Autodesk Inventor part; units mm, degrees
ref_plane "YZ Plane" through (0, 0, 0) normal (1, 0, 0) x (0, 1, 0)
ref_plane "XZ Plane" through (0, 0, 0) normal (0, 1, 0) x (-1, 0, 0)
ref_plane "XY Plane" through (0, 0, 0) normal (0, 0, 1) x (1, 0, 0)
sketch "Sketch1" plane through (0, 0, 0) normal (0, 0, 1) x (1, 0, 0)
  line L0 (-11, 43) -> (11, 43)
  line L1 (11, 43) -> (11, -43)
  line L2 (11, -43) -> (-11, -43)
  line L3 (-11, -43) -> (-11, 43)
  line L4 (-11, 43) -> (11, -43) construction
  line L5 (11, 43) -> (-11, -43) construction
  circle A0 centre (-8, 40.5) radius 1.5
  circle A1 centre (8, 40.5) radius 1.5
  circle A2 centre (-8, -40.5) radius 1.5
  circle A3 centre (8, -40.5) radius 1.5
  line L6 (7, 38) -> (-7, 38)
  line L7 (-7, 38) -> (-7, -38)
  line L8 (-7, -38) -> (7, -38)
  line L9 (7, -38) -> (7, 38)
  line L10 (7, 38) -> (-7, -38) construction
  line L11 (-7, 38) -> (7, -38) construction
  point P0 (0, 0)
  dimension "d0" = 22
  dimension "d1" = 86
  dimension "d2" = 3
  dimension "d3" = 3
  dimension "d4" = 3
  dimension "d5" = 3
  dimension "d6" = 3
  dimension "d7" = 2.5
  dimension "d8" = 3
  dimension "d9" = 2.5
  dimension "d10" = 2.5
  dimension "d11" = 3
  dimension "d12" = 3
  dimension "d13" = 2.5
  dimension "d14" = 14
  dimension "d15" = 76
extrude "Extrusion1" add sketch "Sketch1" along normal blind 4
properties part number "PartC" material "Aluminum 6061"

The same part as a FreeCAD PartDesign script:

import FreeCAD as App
import Part
import Sketcher

doc = App.newDocument("Part")
params = doc.addObject("Spreadsheet::Sheet", "Params")
for row, (alias, value) in enumerate([
    ("sketch1_diameter", "3 mm"),
    ("sketch1_width", "22 mm"),
    ("sketch1_width2", "14 mm"),
    ("sketch1_height", "86 mm"),
    ("sketch1_height2", "76 mm"),
    ("pad1_length", "4 mm"),
], start=1):
    params.set(f"A{row}", alias)
    params.set(f"B{row}", "=" + value)
    params.setAlias(f"B{row}", alias)

body = doc.addObject("PartDesign::Body", "Body")

# Sketch on XY plane
sketch1 = body.newObject("Sketcher::SketchObject", "Sketch")
sketch1.AttachmentSupport = (doc.getObject("XY_Plane"), [""])
sketch1.MapMode = "FlatFace"
sketch1.addGeometry(Part.LineSegment(App.Vector(11, 43, 0), App.Vector(-11, 43, 0)), False)
sketch1.addGeometry(Part.LineSegment(App.Vector(-11, 43, 0), App.Vector(-11, -43, 0)), False)
sketch1.addGeometry(Part.LineSegment(App.Vector(-11, -43, 0), App.Vector(11, -43, 0)), False)
sketch1.addGeometry(Part.LineSegment(App.Vector(11, -43, 0), App.Vector(11, 43, 0)), False)
sketch1.addGeometry(Part.Circle(App.Vector(-8, -40.5, 0), App.Vector(0, 0, 1), 1.5), False)
sketch1.addGeometry(Part.Circle(App.Vector(8, -40.5, 0), App.Vector(0, 0, 1), 1.5), False)
sketch1.addGeometry(Part.Circle(App.Vector(-8, 40.5, 0), App.Vector(0, 0, 1), 1.5), False)
sketch1.addGeometry(Part.LineSegment(App.Vector(-7, 38, 0), App.Vector(7, 38, 0)), False)
sketch1.addGeometry(Part.LineSegment(App.Vector(7, 38, 0), App.Vector(7, -38, 0)), False)
sketch1.addGeometry(Part.LineSegment(App.Vector(7, -38, 0), App.Vector(-7, -38, 0)), False)
sketch1.addGeometry(Part.LineSegment(App.Vector(-7, -38, 0), App.Vector(-7, 38, 0)), False)
sketch1.addGeometry(Part.Circle(App.Vector(8, 40.5, 0), App.Vector(0, 0, 1), 1.5), False)
sketch1.addConstraint(Sketcher.Constraint("Coincident", 0, 2, 1, 1))
sketch1.addConstraint(Sketcher.Constraint("Coincident", 1, 2, 2, 1))
sketch1.addConstraint(Sketcher.Constraint("Coincident", 2, 2, 3, 1))
sketch1.addConstraint(Sketcher.Constraint("Coincident", 3, 2, 0, 1))
sketch1.addConstraint(Sketcher.Constraint("Coincident", 7, 2, 8, 1))
sketch1.addConstraint(Sketcher.Constraint("Coincident", 8, 2, 9, 1))
sketch1.addConstraint(Sketcher.Constraint("Coincident", 9, 2, 10, 1))
sketch1.addConstraint(Sketcher.Constraint("Coincident", 10, 2, 7, 1))
sketch1.addConstraint(Sketcher.Constraint("Horizontal", 0))
sketch1.addConstraint(Sketcher.Constraint("Vertical", 1))
sketch1.addConstraint(Sketcher.Constraint("Horizontal", 2))
sketch1.addConstraint(Sketcher.Constraint("Vertical", 3))
sketch1.addConstraint(Sketcher.Constraint("Horizontal", 7))
sketch1.addConstraint(Sketcher.Constraint("Vertical", 8))
sketch1.addConstraint(Sketcher.Constraint("Horizontal", 9))
sketch1.addConstraint(Sketcher.Constraint("Vertical", 10))
sketch1.addConstraint(Sketcher.Constraint("Equal", 4, 5))
sketch1.addConstraint(Sketcher.Constraint("Equal", 5, 6))
sketch1.addConstraint(Sketcher.Constraint("Equal", 6, 11))
sketch1.addConstraint(Sketcher.Constraint("Symmetric", 5, 3, 6, 3, -1, 1))
sketch1.addConstraint(Sketcher.Constraint("Symmetric", 4, 3, 11, 3, -1, 1))
sketch1.addConstraint(Sketcher.Constraint("Symmetric", 0, 2, 2, 2, -1, 1))
sketch1.addConstraint(Sketcher.Constraint("Symmetric", 7, 2, 9, 2, -1, 1))
sketch1.addConstraint(Sketcher.Constraint("Symmetric", 4, 3, 5, 3, -2))
sketch1.addConstraint(Sketcher.Constraint("Diameter", 4, 3.0))
sketch1.addConstraint(Sketcher.Constraint("DistanceX", 0, 2, 0, 1, 22.0))
sketch1.addConstraint(Sketcher.Constraint("DistanceX", 7, 1, 7, 2, 14.0))
sketch1.addConstraint(Sketcher.Constraint("DistanceY", 1, 2, 1, 1, 86.0))
sketch1.addConstraint(Sketcher.Constraint("DistanceY", 8, 2, 8, 1, 76.0))
sketch1.addConstraint(Sketcher.Constraint("DistanceX", 0, 2, 6, 3, 3.0))
sketch1.addConstraint(Sketcher.Constraint("DistanceY", 6, 3, 0, 2, 2.5))
sketch1.setExpression("Constraints[24]", "Params.sketch1_diameter")
sketch1.setExpression("Constraints[25]", "Params.sketch1_width")
sketch1.setExpression("Constraints[26]", "Params.sketch1_width2")
sketch1.setExpression("Constraints[27]", "Params.sketch1_height")
sketch1.setExpression("Constraints[28]", "Params.sketch1_height2")
pad1 = body.newObject("PartDesign::Pad", "Pad")
pad1.Profile = sketch1
pad1.setExpression("Length", "Params.pad1_length")

doc.recompute()
